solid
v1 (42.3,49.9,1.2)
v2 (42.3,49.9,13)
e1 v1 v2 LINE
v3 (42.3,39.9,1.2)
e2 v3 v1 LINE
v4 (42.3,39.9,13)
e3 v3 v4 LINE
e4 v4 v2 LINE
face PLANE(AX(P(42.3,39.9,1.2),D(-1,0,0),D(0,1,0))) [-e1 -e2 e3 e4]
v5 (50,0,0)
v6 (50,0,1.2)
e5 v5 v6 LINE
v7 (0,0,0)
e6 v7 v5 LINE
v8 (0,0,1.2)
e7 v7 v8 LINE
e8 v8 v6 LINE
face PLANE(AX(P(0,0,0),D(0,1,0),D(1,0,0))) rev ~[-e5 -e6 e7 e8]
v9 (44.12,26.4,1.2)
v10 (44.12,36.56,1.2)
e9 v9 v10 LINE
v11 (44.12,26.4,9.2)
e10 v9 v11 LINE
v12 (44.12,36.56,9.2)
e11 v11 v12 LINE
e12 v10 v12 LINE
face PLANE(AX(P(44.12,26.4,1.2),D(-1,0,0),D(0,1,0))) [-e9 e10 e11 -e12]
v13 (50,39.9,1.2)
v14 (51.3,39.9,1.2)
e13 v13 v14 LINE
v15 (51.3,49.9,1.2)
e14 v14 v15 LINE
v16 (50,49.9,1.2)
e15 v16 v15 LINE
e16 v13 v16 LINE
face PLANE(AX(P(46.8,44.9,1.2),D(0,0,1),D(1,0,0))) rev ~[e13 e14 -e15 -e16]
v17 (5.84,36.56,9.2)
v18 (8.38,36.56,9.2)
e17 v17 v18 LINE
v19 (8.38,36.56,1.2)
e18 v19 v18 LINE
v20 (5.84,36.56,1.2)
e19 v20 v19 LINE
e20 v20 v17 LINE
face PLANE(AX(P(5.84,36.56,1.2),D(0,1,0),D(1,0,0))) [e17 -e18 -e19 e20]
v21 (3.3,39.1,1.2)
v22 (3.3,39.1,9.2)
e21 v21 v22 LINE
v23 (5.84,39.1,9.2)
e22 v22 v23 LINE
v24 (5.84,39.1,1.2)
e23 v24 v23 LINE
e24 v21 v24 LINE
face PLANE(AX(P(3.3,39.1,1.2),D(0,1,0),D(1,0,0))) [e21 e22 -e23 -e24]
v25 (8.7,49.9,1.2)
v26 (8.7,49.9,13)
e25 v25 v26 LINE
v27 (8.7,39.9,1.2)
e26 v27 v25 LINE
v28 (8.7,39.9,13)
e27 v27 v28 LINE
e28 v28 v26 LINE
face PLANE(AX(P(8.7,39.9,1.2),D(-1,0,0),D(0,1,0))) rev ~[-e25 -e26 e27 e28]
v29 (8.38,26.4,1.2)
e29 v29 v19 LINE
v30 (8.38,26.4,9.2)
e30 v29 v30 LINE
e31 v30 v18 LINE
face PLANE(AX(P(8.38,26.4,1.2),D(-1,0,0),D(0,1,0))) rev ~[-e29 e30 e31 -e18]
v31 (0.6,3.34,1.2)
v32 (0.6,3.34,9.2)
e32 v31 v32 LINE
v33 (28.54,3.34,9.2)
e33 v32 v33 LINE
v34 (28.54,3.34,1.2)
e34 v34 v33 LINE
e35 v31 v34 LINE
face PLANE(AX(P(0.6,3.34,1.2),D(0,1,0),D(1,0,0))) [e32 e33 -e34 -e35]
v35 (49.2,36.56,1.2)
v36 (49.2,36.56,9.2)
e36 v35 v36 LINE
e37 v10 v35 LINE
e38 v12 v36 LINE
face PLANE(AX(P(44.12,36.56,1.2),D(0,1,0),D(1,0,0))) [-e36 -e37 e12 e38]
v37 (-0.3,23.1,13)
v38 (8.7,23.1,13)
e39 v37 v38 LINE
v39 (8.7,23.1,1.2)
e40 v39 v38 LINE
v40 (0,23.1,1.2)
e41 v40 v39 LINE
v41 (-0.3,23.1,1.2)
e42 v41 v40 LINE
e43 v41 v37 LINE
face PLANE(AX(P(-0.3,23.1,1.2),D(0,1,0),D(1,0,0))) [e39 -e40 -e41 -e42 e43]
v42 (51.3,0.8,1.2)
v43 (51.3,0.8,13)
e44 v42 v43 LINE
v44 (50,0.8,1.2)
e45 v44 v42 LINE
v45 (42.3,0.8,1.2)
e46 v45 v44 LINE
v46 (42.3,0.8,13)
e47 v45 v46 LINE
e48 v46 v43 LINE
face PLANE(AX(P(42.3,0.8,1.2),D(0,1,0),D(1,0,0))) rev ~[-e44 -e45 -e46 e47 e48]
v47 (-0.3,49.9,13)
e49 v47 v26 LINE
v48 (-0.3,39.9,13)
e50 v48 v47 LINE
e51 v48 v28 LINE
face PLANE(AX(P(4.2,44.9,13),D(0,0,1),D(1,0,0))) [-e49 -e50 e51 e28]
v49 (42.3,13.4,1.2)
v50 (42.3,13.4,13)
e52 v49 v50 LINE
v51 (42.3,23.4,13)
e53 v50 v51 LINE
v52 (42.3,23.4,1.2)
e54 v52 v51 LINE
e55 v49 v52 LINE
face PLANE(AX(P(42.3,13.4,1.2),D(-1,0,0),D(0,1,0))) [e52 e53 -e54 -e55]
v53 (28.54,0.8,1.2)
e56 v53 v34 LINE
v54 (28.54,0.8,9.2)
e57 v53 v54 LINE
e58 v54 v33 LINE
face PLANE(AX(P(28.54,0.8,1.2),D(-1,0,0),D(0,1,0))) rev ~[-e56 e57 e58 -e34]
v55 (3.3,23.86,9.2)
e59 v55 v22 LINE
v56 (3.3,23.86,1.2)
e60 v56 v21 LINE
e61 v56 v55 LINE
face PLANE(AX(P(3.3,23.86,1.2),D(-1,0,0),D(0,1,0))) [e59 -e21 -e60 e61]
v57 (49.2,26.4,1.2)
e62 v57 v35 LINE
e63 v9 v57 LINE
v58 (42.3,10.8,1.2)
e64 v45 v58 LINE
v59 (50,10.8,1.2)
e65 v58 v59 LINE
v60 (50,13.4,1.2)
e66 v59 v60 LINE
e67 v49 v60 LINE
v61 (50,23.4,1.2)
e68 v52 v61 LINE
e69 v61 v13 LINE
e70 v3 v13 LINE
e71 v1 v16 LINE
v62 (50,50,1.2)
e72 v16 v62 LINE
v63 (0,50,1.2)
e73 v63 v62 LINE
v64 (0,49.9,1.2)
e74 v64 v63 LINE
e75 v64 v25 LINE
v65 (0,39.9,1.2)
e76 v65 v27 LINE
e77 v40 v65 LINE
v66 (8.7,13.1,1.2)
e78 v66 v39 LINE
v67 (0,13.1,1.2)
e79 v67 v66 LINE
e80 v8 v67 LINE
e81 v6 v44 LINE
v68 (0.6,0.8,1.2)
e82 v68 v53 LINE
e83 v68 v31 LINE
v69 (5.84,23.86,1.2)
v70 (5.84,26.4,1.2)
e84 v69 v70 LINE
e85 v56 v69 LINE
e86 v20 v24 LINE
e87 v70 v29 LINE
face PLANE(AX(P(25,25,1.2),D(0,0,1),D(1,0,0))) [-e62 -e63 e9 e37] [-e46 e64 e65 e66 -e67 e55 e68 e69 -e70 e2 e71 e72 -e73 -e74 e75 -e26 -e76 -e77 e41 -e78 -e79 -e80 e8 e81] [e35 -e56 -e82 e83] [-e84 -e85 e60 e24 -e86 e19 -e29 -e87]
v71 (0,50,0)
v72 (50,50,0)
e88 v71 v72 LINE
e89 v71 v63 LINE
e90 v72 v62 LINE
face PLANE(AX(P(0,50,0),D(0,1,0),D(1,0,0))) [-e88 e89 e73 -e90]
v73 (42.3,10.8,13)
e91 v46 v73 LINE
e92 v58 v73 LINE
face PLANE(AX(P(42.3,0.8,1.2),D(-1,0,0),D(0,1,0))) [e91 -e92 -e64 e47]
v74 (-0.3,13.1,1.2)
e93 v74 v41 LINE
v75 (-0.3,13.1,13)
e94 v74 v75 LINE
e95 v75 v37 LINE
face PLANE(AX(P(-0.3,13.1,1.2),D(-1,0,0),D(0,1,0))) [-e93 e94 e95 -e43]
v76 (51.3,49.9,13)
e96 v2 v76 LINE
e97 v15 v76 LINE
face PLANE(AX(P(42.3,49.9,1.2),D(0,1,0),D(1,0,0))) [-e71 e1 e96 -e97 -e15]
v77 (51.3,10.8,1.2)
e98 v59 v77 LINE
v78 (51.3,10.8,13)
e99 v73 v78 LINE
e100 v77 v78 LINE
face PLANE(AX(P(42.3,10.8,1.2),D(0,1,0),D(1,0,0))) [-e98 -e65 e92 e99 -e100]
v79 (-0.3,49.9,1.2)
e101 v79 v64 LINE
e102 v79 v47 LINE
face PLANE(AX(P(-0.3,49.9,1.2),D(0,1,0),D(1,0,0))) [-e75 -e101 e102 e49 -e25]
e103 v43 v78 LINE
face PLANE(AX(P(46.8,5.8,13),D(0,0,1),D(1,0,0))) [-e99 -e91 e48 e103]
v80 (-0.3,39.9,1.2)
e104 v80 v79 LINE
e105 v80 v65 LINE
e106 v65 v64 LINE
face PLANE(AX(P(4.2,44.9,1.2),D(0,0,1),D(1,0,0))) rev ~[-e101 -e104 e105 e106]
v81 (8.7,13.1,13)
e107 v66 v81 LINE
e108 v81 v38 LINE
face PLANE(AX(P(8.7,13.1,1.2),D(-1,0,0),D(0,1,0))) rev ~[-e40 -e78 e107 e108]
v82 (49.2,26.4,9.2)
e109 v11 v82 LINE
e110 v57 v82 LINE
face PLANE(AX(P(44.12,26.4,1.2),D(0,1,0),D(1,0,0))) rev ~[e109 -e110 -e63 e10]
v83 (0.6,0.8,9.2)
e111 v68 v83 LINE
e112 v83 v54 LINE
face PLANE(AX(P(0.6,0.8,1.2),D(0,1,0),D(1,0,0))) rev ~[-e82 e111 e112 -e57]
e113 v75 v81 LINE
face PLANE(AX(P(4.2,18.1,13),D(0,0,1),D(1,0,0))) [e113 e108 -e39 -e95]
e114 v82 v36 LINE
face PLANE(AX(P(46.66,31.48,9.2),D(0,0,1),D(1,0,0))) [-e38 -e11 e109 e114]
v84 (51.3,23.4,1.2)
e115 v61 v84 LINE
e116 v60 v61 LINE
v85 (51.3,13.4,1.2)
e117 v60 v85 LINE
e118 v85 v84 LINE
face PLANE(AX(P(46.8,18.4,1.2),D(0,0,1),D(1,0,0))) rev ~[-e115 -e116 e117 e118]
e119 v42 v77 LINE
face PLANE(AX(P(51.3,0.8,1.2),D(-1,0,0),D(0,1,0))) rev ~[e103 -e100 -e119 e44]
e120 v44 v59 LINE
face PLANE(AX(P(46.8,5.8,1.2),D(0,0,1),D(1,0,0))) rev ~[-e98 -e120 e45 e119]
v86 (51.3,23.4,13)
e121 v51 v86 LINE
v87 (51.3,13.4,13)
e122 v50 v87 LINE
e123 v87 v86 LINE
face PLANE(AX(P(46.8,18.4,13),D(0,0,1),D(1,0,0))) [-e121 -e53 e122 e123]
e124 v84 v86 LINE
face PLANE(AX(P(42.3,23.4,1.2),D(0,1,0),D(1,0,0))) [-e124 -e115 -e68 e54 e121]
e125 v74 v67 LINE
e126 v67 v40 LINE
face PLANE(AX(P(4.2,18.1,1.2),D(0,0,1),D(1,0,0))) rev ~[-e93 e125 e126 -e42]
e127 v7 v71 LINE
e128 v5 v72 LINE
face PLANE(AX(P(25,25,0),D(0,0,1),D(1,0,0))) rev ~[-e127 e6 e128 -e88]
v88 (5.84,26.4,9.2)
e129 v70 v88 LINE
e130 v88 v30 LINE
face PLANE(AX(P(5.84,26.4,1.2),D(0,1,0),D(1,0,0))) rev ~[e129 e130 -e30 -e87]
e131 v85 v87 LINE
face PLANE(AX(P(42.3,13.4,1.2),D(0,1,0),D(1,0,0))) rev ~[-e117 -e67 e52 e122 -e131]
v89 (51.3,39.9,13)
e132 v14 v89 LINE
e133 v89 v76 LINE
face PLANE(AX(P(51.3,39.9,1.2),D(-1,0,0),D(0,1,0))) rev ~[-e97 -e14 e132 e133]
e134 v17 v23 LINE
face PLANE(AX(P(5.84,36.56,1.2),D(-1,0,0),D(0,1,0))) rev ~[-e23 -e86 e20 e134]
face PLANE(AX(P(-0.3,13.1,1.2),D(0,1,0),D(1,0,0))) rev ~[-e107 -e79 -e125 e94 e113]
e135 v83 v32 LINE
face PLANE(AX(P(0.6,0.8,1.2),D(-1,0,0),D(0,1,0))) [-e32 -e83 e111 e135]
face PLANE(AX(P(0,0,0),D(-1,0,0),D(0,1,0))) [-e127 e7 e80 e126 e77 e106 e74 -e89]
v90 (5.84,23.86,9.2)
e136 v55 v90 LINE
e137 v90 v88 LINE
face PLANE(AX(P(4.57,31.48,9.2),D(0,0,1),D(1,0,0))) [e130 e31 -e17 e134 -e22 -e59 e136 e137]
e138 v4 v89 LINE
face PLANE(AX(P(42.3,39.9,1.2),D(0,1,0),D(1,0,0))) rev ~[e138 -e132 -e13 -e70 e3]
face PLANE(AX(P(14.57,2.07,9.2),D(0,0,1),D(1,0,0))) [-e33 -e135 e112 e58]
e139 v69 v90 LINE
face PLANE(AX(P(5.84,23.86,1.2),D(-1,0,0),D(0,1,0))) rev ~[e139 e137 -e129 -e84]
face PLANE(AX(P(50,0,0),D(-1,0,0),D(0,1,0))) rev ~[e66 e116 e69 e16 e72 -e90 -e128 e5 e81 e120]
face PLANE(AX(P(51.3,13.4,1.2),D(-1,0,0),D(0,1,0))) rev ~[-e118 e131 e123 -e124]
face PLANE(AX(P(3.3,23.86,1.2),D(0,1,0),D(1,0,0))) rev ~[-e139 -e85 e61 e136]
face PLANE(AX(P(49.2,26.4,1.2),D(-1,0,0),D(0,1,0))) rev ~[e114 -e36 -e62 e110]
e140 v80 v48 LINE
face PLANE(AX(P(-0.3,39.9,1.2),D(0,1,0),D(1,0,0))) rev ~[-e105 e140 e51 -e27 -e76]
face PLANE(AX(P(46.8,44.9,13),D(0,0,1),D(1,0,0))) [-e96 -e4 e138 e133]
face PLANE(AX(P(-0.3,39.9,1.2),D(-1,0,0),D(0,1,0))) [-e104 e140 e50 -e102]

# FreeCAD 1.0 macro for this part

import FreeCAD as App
import Part
import Sketcher

V = App.Vector
Q = App.Units.Quantity

doc = App.newDocument("Part")
params = doc.addObject("Spreadsheet::Sheet", "Params")
for row, (alias, value) in enumerate([
    ("sketch1_width", "50 mm"),
    ("pad1_length", "1.2 mm"),
    ("sketch2_width", "9 mm"),
    ("sketch2_height", "10 mm"),
    ("pad2_length", "11.8 mm"),
    ("sketch3_width", "27.94 mm"),
    ("sketch3_width2", "2.54 mm"),
    ("sketch3_width3", "5.08 mm"),
    ("sketch3_height", "15.24 mm"),
    ("pad3_length", "8 mm"),
], start=1):
    params.set(f"A{row}", alias)
    params.set(f"B{row}", "=" + value)
    params.setAlias(f"B{row}", alias)

body = doc.addObject("PartDesign::Body", "Body")

sketch1 = doc.addObject("Sketcher::SketchObject", "Sketch")
body.addObject(sketch1)
sketch1.AttachmentSupport = (doc.XY_Plane, [""])
sketch1.MapMode = "FlatFace"
sketch1.addGeometry(Part.LineSegment(V(0, 50, 0), V(0, 0, 0)), False)
sketch1.addGeometry(Part.LineSegment(V(0, 0, 0), V(50, 0, 0)), False)
sketch1.addGeometry(Part.LineSegment(V(50, 0, 0), V(50, 50, 0)), False)
sketch1.addGeometry(Part.LineSegment(V(50, 50, 0), V(0, 50, 0)), False)
sketch1.addConstraint(Sketcher.Constraint("Coincident", 0, 2, 1, 1))
sketch1.addConstraint(Sketcher.Constraint("Coincident", 1, 2, 2, 1))
sketch1.addConstraint(Sketcher.Constraint("Coincident", 2, 2, 3, 1))
sketch1.addConstraint(Sketcher.Constraint("Coincident", 3, 2, 0, 1))
sketch1.addConstraint(Sketcher.Constraint("Vertical", 0))
sketch1.addConstraint(Sketcher.Constraint("Horizontal", 1))
sketch1.addConstraint(Sketcher.Constraint("Vertical", 2))
sketch1.addConstraint(Sketcher.Constraint("Horizontal", 3))
sketch1.addConstraint(Sketcher.Constraint("Coincident", 0, 2, -1, 1))
sketch1.addConstraint(Sketcher.Constraint("Equal", 3, 0))
sketch1.addConstraint(Sketcher.Constraint("DistanceX", 1, 1, 1, 2, Q("50 mm")))
sketch1.setExpression("Constraints[10]", "Params.sketch1_width")
pad1 = doc.addObject("PartDesign::Pad", "Pad")
body.addObject(pad1)
pad1.Profile = sketch1
pad1.setExpression("Length", "Params.pad1_length")

sketch2 = doc.addObject("Sketcher::SketchObject", "Sketch001")
body.addObject(sketch2)
sketch2.AttachmentSupport = (doc.XY_Plane, [""])
sketch2.MapMode = "FlatFace"
sketch2.AttachmentOffset = App.Placement(V(0, 0, 1.2), App.Rotation())
sketch2.addGeometry(Part.LineSegment(V(42.3, 10.8, 0), V(42.3, 0.8, 0)), False)
sketch2.addGeometry(Part.LineSegment(V(42.3, 0.8, 0), V(51.3, 0.8, 0)), False)
sketch2.addGeometry(Part.LineSegment(V(51.3, 0.8, 0), V(51.3, 10.8, 0)), False)
sketch2.addGeometry(Part.LineSegment(V(51.3, 10.8, 0), V(42.3, 10.8, 0)), False)
sketch2.addGeometry(Part.LineSegment(V(42.3, 23.4, 0), V(42.3, 13.4, 0)), False)
sketch2.addGeometry(Part.LineSegment(V(42.3, 13.4, 0), V(51.3, 13.4, 0)), False)
sketch2.addGeometry(Part.LineSegment(V(51.3, 13.4, 0), V(51.3, 23.4, 0)), False)
sketch2.addGeometry(Part.LineSegment(V(51.3, 23.4, 0), V(42.3, 23.4, 0)), False)
sketch2.addGeometry(Part.LineSegment(V(42.3, 49.9, 0), V(42.3, 39.9, 0)), False)
sketch2.addGeometry(Part.LineSegment(V(42.3, 39.9, 0), V(51.3, 39.9, 0)), False)
sketch2.addGeometry(Part.LineSegment(V(51.3, 39.9, 0), V(51.3, 49.9, 0)), False)
sketch2.addGeometry(Part.LineSegment(V(51.3, 49.9, 0), V(42.3, 49.9, 0)), False)
sketch2.addGeometry(Part.LineSegment(V(-0.3, 49.9, 0), V(-0.3, 39.9, 0)), False)
sketch2.addGeometry(Part.LineSegment(V(-0.3, 39.9, 0), V(8.7, 39.9, 0)), False)
sketch2.addGeometry(Part.LineSegment(V(8.7, 39.9, 0), V(8.7, 49.9, 0)), False)
sketch2.addGeometry(Part.LineSegment(V(8.7, 49.9, 0), V(-0.3, 49.9, 0)), False)
sketch2.addGeometry(Part.LineSegment(V(-0.3, 23.1, 0), V(-0.3, 13.1, 0)), False)
sketch2.addGeometry(Part.LineSegment(V(-0.3, 13.1, 0), V(8.7, 13.1, 0)), False)
sketch2.addGeometry(Part.LineSegment(V(8.7, 13.1, 0), V(8.7, 23.1, 0)), False)
sketch2.addGeometry(Part.LineSegment(V(8.7, 23.1, 0), V(-0.3, 23.1, 0)), False)
sketch2.addConstraint(Sketcher.Constraint("Coincident", 0, 2, 1, 1))
sketch2.addConstraint(Sketcher.Constraint("Coincident", 1, 2, 2, 1))
sketch2.addConstraint(Sketcher.Constraint("Coincident", 2, 2, 3, 1))
sketch2.addConstraint(Sketcher.Constraint("Coincident", 3, 2, 0, 1))
sketch2.addConstraint(Sketcher.Constraint("Coincident", 4, 2, 5, 1))
sketch2.addConstraint(Sketcher.Constraint("Coincident", 5, 2, 6, 1))
sketch2.addConstraint(Sketcher.Constraint("Coincident", 6, 2, 7, 1))
sketch2.addConstraint(Sketcher.Constraint("Coincident", 7, 2, 4, 1))
sketch2.addConstraint(Sketcher.Constraint("Coincident", 8, 2, 9, 1))
sketch2.addConstraint(Sketcher.Constraint("Coincident", 9, 2, 10, 1))
sketch2.addConstraint(Sketcher.Constraint("Coincident", 10, 2, 11, 1))
sketch2.addConstraint(Sketcher.Constraint("Coincident", 11, 2, 8, 1))
sketch2.addConstraint(Sketcher.Constraint("Coincident", 12, 2, 13, 1))
sketch2.addConstraint(Sketcher.Constraint("Coincident", 13, 2, 14, 1))
sketch2.addConstraint(Sketcher.Constraint("Coincident", 14, 2, 15, 1))
sketch2.addConstraint(Sketcher.Constraint("Coincident", 15, 2, 12, 1))
sketch2.addConstraint(Sketcher.Constraint("Coincident", 16, 2, 17, 1))
sketch2.addConstraint(Sketcher.Constraint("Coincident", 17, 2, 18, 1))
sketch2.addConstraint(Sketcher.Constraint("Coincident", 18, 2, 19, 1))
sketch2.addConstraint(Sketcher.Constraint("Coincident", 19, 2, 16, 1))
sketch2.addConstraint(Sketcher.Constraint("Vertical", 0))
sketch2.addConstraint(Sketcher.Constraint("Horizontal", 1))
sketch2.addConstraint(Sketcher.Constraint("Vertical", 2))
sketch2.addConstraint(Sketcher.Constraint("Horizontal", 3))
sketch2.addConstraint(Sketcher.Constraint("Vertical", 4))
sketch2.addConstraint(Sketcher.Constraint("Horizontal", 5))
sketch2.addConstraint(Sketcher.Constraint("Vertical", 6))
sketch2.addConstraint(Sketcher.Constraint("Horizontal", 7))
sketch2.addConstraint(Sketcher.Constraint("Vertical", 8))
sketch2.addConstraint(Sketcher.Constraint("Horizontal", 9))
sketch2.addConstraint(Sketcher.Constraint("Vertical", 10))
sketch2.addConstraint(Sketcher.Constraint("Horizontal", 11))
sketch2.addConstraint(Sketcher.Constraint("Vertical", 12))
sketch2.addConstraint(Sketcher.Constraint("Horizontal", 13))
sketch2.addConstraint(Sketcher.Constraint("Vertical", 14))
sketch2.addConstraint(Sketcher.Constraint("Horizontal", 15))
sketch2.addConstraint(Sketcher.Constraint("Vertical", 16))
sketch2.addConstraint(Sketcher.Constraint("Horizontal", 17))
sketch2.addConstraint(Sketcher.Constraint("Vertical", 18))
sketch2.addConstraint(Sketcher.Constraint("Horizontal", 19))
sketch2.addConstraint(Sketcher.Constraint("Horizontal", 9, 2, 12, 2))
sketch2.addConstraint(Sketcher.Constraint("Horizontal", 11, 2, 14, 2))
sketch2.addConstraint(Sketcher.Constraint("Vertical", 3, 2, 4, 2))
sketch2.addConstraint(Sketcher.Constraint("Vertical", 2, 2, 5, 2))
sketch2.addConstraint(Sketcher.Constraint("Vertical", 7, 2, 8, 2))
sketch2.addConstraint(Sketcher.Constraint("Vertical", 6, 2, 9, 2))
sketch2.addConstraint(Sketcher.Constraint("Vertical", 15, 2, 16, 2))
sketch2.addConstraint(Sketcher.Constraint("Vertical", 14, 2, 17, 2))
sketch2.addConstraint(Sketcher.Constraint("Equal", 11, 13))
sketch2.addConstraint(Sketcher.Constraint("Equal", 2, 4))
sketch2.addConstraint(Sketcher.Constraint("Equal", 6, 8))
sketch2.addConstraint(Sketcher.Constraint("Equal", 14, 16))
sketch2.addConstraint(Sketcher.Constraint("DistanceX", 1, 1, 1, 2, Q("9 mm")))
sketch2.addConstraint(Sketcher.Constraint("DistanceY", 0, 2, 0, 1, Q("10 mm")))
sketch2.addConstraint(Sketcher.Constraint("DistanceX", -1, 1, 0, 2, Q("42.3 mm")))
sketch2.addConstraint(Sketcher.Constraint("DistanceY", -1, 1, 0, 2, Q("0.8 mm")))
sketch2.addConstraint(Sketcher.Constraint("DistanceY", -1, 1, 4, 2, Q("13.4 mm")))
sketch2.addConstraint(Sketcher.Constraint("DistanceY", -1, 1, 8, 2, Q("39.9 mm")))
sketch2.addConstraint(Sketcher.Constraint("DistanceX", 12, 2, -1, 1, Q("0.3 mm")))
sketch2.addConstraint(Sketcher.Constraint("DistanceY", -1, 1, 16, 2, Q("13.1 mm")))
sketch2.setExpression("Constraints[52]", "Params.sketch2_width")
sketch2.setExpression("Constraints[53]", "Params.sketch2_height")
pad2 = doc.addObject("PartDesign::Pad", "Pad001")
body.addObject(pad2)
pad2.Profile = sketch2
pad2.setExpression("Length", "Params.pad2_length")

sketch3 = doc.addObject("Sketcher::SketchObject", "Sketch002")
body.addObject(sketch3)
sketch3.AttachmentSupport = (doc.XY_Plane, [""])
sketch3.MapMode = "FlatFace"
sketch3.AttachmentOffset = App.Placement(V(0, 0, 1.2), App.Rotation())
sketch3.addGeometry(Part.LineSegment(V(0.6, 3.34, 0), V(0.6, 0.8, 0)), False)
sketch3.addGeometry(Part.LineSegment(V(0.6, 0.8, 0), V(28.54, 0.8, 0)), False)
sketch3.addGeometry(Part.LineSegment(V(28.54, 0.8, 0), V(28.54, 3.34, 0)), False)
sketch3.addGeometry(Part.LineSegment(V(28.54, 3.34, 0), V(0.6, 3.34, 0)), False)
sketch3.addGeometry(Part.LineSegment(V(3.3, 39.1, 0), V(3.3, 23.86, 0)), False)
sketch3.addGeometry(Part.LineSegment(V(3.3, 23.86, 0), V(5.84, 23.86, 0)), False)
sketch3.addGeometry(Part.LineSegment(V(5.84, 23.86, 0), V(5.84, 26.4, 0)), False)
sketch3.addGeometry(Part.LineSegment(V(5.84, 26.4, 0), V(8.38, 26.4, 0)), False)
sketch3.addGeometry(Part.LineSegment(V(8.38, 26.4, 0), V(8.38, 36.56, 0)), False)
sketch3.addGeometry(Part.LineSegment(V(8.38, 36.56, 0), V(5.84, 36.56, 0)), False)
sketch3.addGeometry(Part.LineSegment(V(5.84, 36.56, 0), V(5.84, 39.1, 0)), False)
sketch3.addGeometry(Part.LineSegment(V(5.84, 39.1, 0), V(3.3, 39.1, 0)), False)
sketch3.addGeometry(Part.LineSegment(V(44.12, 36.56, 0), V(44.12, 26.4, 0)), False)
sketch3.addGeometry(Part.LineSegment(V(44.12, 26.4, 0), V(49.2, 26.4, 0)), False)
sketch3.addGeometry(Part.LineSegment(V(49.2, 26.4, 0), V(49.2, 36.56, 0)), False)
sketch3.addGeometry(Part.LineSegment(V(49.2, 36.56, 0), V(44.12, 36.56, 0)), False)
sketch3.addConstraint(Sketcher.Constraint("Coincident", 0, 2, 1, 1))
sketch3.addConstraint(Sketcher.Constraint("Coincident", 1, 2, 2, 1))
sketch3.addConstraint(Sketcher.Constraint("Coincident", 2, 2, 3, 1))
sketch3.addConstraint(Sketcher.Constraint("Coincident", 3, 2, 0, 1))
sketch3.addConstraint(Sketcher.Constraint("Coincident", 4, 2, 5, 1))
sketch3.addConstraint(Sketcher.Constraint("Coincident", 5, 2, 6, 1))
sketch3.addConstraint(Sketcher.Constraint("Coincident", 6, 2, 7, 1))
sketch3.addConstraint(Sketcher.Constraint("Coincident", 7, 2, 8, 1))
sketch3.addConstraint(Sketcher.Constraint("Coincident", 8, 2, 9, 1))
sketch3.addConstraint(Sketcher.Constraint("Coincident", 9, 2, 10, 1))
sketch3.addConstraint(Sketcher.Constraint("Coincident", 10, 2, 11, 1))
sketch3.addConstraint(Sketcher.Constraint("Coincident", 11, 2, 4, 1))
sketch3.addConstraint(Sketcher.Constraint("Coincident", 12, 2, 13, 1))
sketch3.addConstraint(Sketcher.Constraint("Coincident", 13, 2, 14, 1))
sketch3.addConstraint(Sketcher.Constraint("Coincident", 14, 2, 15, 1))
sketch3.addConstraint(Sketcher.Constraint("Coincident", 15, 2, 12, 1))
sketch3.addConstraint(Sketcher.Constraint("Vertical", 0))
sketch3.addConstraint(Sketcher.Constraint("Horizontal", 1))
sketch3.addConstraint(Sketcher.Constraint("Vertical", 2))
sketch3.addConstraint(Sketcher.Constraint("Horizontal", 3))
sketch3.addConstraint(Sketcher.Constraint("Vertical", 4))
sketch3.addConstraint(Sketcher.Constraint("Horizontal", 5))
sketch3.addConstraint(Sketcher.Constraint("Vertical", 6))
sketch3.addConstraint(Sketcher.Constraint("Horizontal", 7))
sketch3.addConstraint(Sketcher.Constraint("Vertical", 8))
sketch3.addConstraint(Sketcher.Constraint("Horizontal", 9))
sketch3.addConstraint(Sketcher.Constraint("Vertical", 10))
sketch3.addConstraint(Sketcher.Constraint("Horizontal", 11))
sketch3.addConstraint(Sketcher.Constraint("Vertical", 12))
sketch3.addConstraint(Sketcher.Constraint("Horizontal", 13))
sketch3.addConstraint(Sketcher.Constraint("Vertical", 14))
sketch3.addConstraint(Sketcher.Constraint("Horizontal", 15))
sketch3.addConstraint(Sketcher.Constraint("Horizontal", 7, 2, 12, 2))
sketch3.addConstraint(Sketcher.Constraint("Horizontal", 9, 2, 14, 2))
sketch3.addConstraint(Sketcher.Constraint("Vertical", 6, 2, 9, 2))
sketch3.addConstraint(Sketcher.Constraint("Equal", 5, 7))
sketch3.addConstraint(Sketcher.Constraint("Equal", 11, 0))
sketch3.addConstraint(Sketcher.Constraint("Equal", 2, 6))
sketch3.addConstraint(Sketcher.Constraint("Equal", 6, 10))
sketch3.addConstraint(Sketcher.Constraint("DistanceX", 1, 1, 1, 2, Q("27.94 mm")))
sketch3.addConstraint(Sketcher.Constraint("DistanceX", 5, 1, 5, 2, Q("2.54 mm")))
sketch3.addConstraint(Sketcher.Constraint("DistanceX", 13, 1, 13, 2, Q("5.08 mm")))
sketch3.addConstraint(Sketcher.Constraint("DistanceY", 4, 2, 4, 1, Q("15.24 mm")))
sketch3.addConstraint(Sketcher.Constraint("DistanceX", -1, 1, 0, 2, Q("0.6 mm")))
sketch3.addConstraint(Sketcher.Constraint("DistanceY", -1, 1, 0, 2, Q("0.8 mm")))
sketch3.addConstraint(Sketcher.Constraint("DistanceX", -1, 1, 4, 2, Q("3.3 mm")))
sketch3.addConstraint(Sketcher.Constraint("DistanceY", -1, 1, 6, 2, Q("26.4 mm")))
sketch3.addConstraint(Sketcher.Constraint("DistanceX", -1, 1, 13, 2, Q("49.2 mm")))
sketch3.setExpression("Constraints[39]", "Params.sketch3_width")
sketch3.setExpression("Constraints[40]", "Params.sketch3_width2")
sketch3.setExpression("Constraints[41]", "Params.sketch3_width3")
sketch3.setExpression("Constraints[42]", "Params.sketch3_height")
pad3 = doc.addObject("PartDesign::Pad", "Pad002")
body.addObject(pad3)
pad3.Profile = sketch3
pad3.setExpression("Length", "Params.pad3_length")

doc.recompute()
